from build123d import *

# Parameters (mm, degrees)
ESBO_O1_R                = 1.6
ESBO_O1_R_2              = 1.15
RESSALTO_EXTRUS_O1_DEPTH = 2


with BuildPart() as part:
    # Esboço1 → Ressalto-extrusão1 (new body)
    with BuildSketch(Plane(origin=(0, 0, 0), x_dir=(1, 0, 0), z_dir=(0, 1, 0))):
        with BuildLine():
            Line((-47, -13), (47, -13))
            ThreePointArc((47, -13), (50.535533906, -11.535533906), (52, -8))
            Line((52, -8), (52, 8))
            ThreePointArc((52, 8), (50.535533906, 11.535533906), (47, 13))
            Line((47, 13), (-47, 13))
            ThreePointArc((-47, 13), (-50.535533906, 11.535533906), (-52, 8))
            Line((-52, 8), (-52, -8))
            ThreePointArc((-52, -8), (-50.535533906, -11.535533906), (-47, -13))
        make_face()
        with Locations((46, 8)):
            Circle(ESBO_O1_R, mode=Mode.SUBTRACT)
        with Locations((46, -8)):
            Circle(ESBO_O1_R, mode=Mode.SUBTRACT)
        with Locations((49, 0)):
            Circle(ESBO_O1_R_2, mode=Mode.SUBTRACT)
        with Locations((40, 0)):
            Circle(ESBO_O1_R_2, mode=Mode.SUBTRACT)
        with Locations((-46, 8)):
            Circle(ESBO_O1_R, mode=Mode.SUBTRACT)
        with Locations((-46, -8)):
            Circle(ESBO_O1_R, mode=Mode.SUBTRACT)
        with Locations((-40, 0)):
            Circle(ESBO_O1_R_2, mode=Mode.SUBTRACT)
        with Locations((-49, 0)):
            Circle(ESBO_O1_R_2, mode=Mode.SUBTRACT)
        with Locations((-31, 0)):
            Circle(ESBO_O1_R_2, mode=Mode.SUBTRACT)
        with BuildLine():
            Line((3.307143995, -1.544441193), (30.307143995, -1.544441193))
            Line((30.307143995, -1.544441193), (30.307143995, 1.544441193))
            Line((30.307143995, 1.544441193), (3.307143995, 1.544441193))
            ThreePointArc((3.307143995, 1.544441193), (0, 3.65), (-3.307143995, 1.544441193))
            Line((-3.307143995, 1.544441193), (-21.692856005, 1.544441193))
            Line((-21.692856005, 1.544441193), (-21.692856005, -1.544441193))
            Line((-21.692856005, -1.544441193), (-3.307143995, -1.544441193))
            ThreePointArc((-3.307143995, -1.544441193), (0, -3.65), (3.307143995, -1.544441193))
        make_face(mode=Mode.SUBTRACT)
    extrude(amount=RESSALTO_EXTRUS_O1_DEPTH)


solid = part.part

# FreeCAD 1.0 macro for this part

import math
import FreeCAD as App
import Part
import Sketcher

V = App.Vector
Q = App.Units.Quantity

doc = App.newDocument("Part")
body = doc.addObject("PartDesign::Body", "Body")

sketch1 = doc.addObject("Sketcher::SketchObject", "Sketch")
body.addObject(sketch1)
sketch1.AttachmentSupport = (doc.XZ_Plane, [""])
sketch1.MapMode = "FlatFace"
sketch1.addGeometry([
    Part.LineSegment(V(-47, 13, 0), V(47, 13, 0)),
    Part.ArcOfCircle(Part.Circle(V(47, 8, 0), V(0, 0, 1), 5), math.radians(0), math.radians(90)),
    Part.LineSegment(V(52, 8, 0), V(52, -8, 0)),
    Part.ArcOfCircle(Part.Circle(V(47, -8, 0), V(0, 0, 1), 5), math.radians(-90), math.radians(0)),
    Part.LineSegment(V(47, -13, 0), V(-47, -13, 0)),
    Part.ArcOfCircle(Part.Circle(V(-47, -8, 0), V(0, 0, 1), 5), math.radians(180), math.radians(270)),
    Part.LineSegment(V(-52, -8, 0), V(-52, 8, 0)),
    Part.ArcOfCircle(Part.Circle(V(-47, 8, 0), V(0, 0, 1), 5), math.radians(90), math.radians(180)),
    Part.Circle(V(-46, 8, 0), V(0, 0, 1), 1.6),
    Part.Circle(V(46, 8, 0), V(0, 0, 1), 1.6),
    Part.Circle(V(-49, 0, 0), V(0, 0, 1), 1.15),
    Part.Circle(V(-40, 0, 0), V(0, 0, 1), 1.15),
    Part.Circle(V(-31, 0, 0), V(0, 0, 1), 1.15),
    Part.Circle(V(-46, -8, 0), V(0, 0, 1), 1.6),
    Part.LineSegment(V(30.307144, 1.544441, 0), V(3.307144, 1.544441, 0)),
    Part.ArcOfCircle(Part.Circle(V(0, 0, 0), V(0, 0, 1), 3.65), math.radians(25.032645), math.radians(154.967355)),
    Part.LineSegment(V(-3.307144, 1.544441, 0), V(-21.692856, 1.544441, 0)),
    Part.LineSegment(V(-21.692856, 1.544441, 0), V(-21.692856, -1.544441, 0)),
    Part.LineSegment(V(-21.692856, -1.544441, 0), V(-3.307144, -1.544441, 0)),
    Part.ArcOfCircle(Part.Circle(V(0, 0, 0), V(0, 0, 1), 3.65), math.radians(-154.967355), math.radians(-25.032645)),
    Part.LineSegment(V(3.307144, -1.544441, 0), V(30.307144, -1.544441, 0)),
    Part.LineSegment(V(30.307144, -1.544441, 0), V(30.307144, 1.544441, 0)),
    Part.Circle(V(40, 0, 0), V(0, 0, 1), 1.15),
    Part.Circle(V(49, 0, 0), V(0, 0, 1), 1.15),
    Part.Circle(V(46, -8, 0), V(0, 0, 1), 1.6),
], False)
sketch1.addConstraint([
    Sketcher.Constraint("Tangent", 0, 2, 1, 2),
    Sketcher.Constraint("Tangent", 1, 1, 2, 1),
    Sketcher.Constraint("Tangent", 2, 2, 3, 2),
    Sketcher.Constraint("Tangent", 3, 1, 4, 1),
    Sketcher.Constraint("Tangent", 4, 2, 5, 2),
    Sketcher.Constraint("Tangent", 5, 1, 6, 1),
    Sketcher.Constraint("Tangent", 6, 2, 7, 2),
    Sketcher.Constraint("Tangent", 7, 1, 0, 1),
    Sketcher.Constraint("Coincident", 14, 2, 15, 1),
    Sketcher.Constraint("Coincident", 15, 2, 16, 1),
    Sketcher.Constraint("Coincident", 16, 2, 17, 1),
    Sketcher.Constraint("Coincident", 17, 2, 18, 1),
    Sketcher.Constraint("Coincident", 18, 2, 19, 1),
    Sketcher.Constraint("Coincident", 19, 2, 20, 1),
    Sketcher.Constraint("Coincident", 20, 2, 21, 1),
    Sketcher.Constraint("Coincident", 21, 2, 14, 1),
    Sketcher.Constraint("Horizontal", 0),
    Sketcher.Constraint("Vertical", 2),
    Sketcher.Constraint("Horizontal", 4),
    Sketcher.Constraint("Vertical", 6),
    Sketcher.Constraint("Horizontal", 14),
    Sketcher.Constraint("Horizontal", 16),
    Sketcher.Constraint("Vertical", 17),
    Sketcher.Constraint("Horizontal", 18),
    Sketcher.Constraint("Horizontal", 20),
    Sketcher.Constraint("Vertical", 21),
    Sketcher.Constraint("Coincident", 15, 3, -1, 1),
    Sketcher.Constraint("Coincident", 19, 3, -1, 1),
    Sketcher.Constraint("Equal", 1, 3),
    Sketcher.Constraint("Equal", 3, 5),
    Sketcher.Constraint("Equal", 5, 7),
    Sketcher.Constraint("Equal", 8, 9),
    Sketcher.Constraint("Equal", 10, 11),
    Sketcher.Constraint("Equal", 11, 12),
    Sketcher.Constraint("Equal", 9, 13),
    Sketcher.Constraint("Equal", 15, 19),
    Sketcher.Constraint("Equal", 12, 22),
    Sketcher.Constraint("Equal", 22, 23),
    Sketcher.Constraint("Equal", 13, 24),
    Sketcher.Constraint("Symmetric", 1, 3, 5, 3, -1, 1),
    Sketcher.Constraint("Symmetric", 9, 3, 13, 3, -1, 1),
    Sketcher.Constraint("Symmetric", 11, 3, 22, 3, -1, 1),
    Sketcher.Constraint("Symmetric", 10, 3, 23, 3, -1, 1),
    Sketcher.Constraint("Symmetric", 8, 3, 24, 3, -1, 1),
    Sketcher.Constraint("Symmetric", 8, 3, 9, 3, -2),
    Sketcher.Constraint("PointOnObject", 10, 3, -1),
    Sketcher.Constraint("PointOnObject", 11, 3, -1),
    Sketcher.Constraint("PointOnObject", 12, 3, -1),
    Sketcher.Constraint("Horizontal", 7, 3, 8, 3),
    Sketcher.Constraint("Horizontal", 14, 2, 15, 2),
    Sketcher.Constraint("Horizontal", 18, 2, 19, 2),
    Sketcher.Constraint("Vertical", 15, 2, 18, 2),
    Sketcher.Constraint("Radius", 1, Q("5 mm")),
    Sketcher.Constraint("Diameter", 8, Q("3.2 mm")),
    Sketcher.Constraint("Diameter", 10, Q("2.3 mm")),
    Sketcher.Constraint("DistanceX", 0, 1, 0, 2, Q("94 mm")),
    Sketcher.Constraint("DistanceX", 14, 2, 14, 1, Q("27 mm")),
    Sketcher.Constraint("DistanceY", 2, 2, 2, 1, Q("16 mm")),
    Sketcher.Constraint("Radius", 15, Q("3.65 mm")),
    Sketcher.Constraint("DistanceX", 8, 3, -1, 1, Q("46 mm")),
    Sketcher.Constraint("DistanceX", 10, 3, -1, 1, Q("49 mm")),
    Sketcher.Constraint("DistanceX", 11, 3, -1, 1, Q("40 mm")),
    Sketcher.Constraint("DistanceX", 12, 3, -1, 1, Q("31 mm")),
    Sketcher.Constraint("DistanceX", 16, 2, 16, 1, Q("18.385712 mm")),
    Sketcher.Constraint("DistanceY", 17, 2, 17, 1, Q("3.088882 mm")),
])
pad1 = doc.addObject("PartDesign::Pad", "Pad")
body.addObject(pad1)
pad1.Profile = sketch1
pad1.Length = 2
pad1.Reversed = True

doc.recompute()
